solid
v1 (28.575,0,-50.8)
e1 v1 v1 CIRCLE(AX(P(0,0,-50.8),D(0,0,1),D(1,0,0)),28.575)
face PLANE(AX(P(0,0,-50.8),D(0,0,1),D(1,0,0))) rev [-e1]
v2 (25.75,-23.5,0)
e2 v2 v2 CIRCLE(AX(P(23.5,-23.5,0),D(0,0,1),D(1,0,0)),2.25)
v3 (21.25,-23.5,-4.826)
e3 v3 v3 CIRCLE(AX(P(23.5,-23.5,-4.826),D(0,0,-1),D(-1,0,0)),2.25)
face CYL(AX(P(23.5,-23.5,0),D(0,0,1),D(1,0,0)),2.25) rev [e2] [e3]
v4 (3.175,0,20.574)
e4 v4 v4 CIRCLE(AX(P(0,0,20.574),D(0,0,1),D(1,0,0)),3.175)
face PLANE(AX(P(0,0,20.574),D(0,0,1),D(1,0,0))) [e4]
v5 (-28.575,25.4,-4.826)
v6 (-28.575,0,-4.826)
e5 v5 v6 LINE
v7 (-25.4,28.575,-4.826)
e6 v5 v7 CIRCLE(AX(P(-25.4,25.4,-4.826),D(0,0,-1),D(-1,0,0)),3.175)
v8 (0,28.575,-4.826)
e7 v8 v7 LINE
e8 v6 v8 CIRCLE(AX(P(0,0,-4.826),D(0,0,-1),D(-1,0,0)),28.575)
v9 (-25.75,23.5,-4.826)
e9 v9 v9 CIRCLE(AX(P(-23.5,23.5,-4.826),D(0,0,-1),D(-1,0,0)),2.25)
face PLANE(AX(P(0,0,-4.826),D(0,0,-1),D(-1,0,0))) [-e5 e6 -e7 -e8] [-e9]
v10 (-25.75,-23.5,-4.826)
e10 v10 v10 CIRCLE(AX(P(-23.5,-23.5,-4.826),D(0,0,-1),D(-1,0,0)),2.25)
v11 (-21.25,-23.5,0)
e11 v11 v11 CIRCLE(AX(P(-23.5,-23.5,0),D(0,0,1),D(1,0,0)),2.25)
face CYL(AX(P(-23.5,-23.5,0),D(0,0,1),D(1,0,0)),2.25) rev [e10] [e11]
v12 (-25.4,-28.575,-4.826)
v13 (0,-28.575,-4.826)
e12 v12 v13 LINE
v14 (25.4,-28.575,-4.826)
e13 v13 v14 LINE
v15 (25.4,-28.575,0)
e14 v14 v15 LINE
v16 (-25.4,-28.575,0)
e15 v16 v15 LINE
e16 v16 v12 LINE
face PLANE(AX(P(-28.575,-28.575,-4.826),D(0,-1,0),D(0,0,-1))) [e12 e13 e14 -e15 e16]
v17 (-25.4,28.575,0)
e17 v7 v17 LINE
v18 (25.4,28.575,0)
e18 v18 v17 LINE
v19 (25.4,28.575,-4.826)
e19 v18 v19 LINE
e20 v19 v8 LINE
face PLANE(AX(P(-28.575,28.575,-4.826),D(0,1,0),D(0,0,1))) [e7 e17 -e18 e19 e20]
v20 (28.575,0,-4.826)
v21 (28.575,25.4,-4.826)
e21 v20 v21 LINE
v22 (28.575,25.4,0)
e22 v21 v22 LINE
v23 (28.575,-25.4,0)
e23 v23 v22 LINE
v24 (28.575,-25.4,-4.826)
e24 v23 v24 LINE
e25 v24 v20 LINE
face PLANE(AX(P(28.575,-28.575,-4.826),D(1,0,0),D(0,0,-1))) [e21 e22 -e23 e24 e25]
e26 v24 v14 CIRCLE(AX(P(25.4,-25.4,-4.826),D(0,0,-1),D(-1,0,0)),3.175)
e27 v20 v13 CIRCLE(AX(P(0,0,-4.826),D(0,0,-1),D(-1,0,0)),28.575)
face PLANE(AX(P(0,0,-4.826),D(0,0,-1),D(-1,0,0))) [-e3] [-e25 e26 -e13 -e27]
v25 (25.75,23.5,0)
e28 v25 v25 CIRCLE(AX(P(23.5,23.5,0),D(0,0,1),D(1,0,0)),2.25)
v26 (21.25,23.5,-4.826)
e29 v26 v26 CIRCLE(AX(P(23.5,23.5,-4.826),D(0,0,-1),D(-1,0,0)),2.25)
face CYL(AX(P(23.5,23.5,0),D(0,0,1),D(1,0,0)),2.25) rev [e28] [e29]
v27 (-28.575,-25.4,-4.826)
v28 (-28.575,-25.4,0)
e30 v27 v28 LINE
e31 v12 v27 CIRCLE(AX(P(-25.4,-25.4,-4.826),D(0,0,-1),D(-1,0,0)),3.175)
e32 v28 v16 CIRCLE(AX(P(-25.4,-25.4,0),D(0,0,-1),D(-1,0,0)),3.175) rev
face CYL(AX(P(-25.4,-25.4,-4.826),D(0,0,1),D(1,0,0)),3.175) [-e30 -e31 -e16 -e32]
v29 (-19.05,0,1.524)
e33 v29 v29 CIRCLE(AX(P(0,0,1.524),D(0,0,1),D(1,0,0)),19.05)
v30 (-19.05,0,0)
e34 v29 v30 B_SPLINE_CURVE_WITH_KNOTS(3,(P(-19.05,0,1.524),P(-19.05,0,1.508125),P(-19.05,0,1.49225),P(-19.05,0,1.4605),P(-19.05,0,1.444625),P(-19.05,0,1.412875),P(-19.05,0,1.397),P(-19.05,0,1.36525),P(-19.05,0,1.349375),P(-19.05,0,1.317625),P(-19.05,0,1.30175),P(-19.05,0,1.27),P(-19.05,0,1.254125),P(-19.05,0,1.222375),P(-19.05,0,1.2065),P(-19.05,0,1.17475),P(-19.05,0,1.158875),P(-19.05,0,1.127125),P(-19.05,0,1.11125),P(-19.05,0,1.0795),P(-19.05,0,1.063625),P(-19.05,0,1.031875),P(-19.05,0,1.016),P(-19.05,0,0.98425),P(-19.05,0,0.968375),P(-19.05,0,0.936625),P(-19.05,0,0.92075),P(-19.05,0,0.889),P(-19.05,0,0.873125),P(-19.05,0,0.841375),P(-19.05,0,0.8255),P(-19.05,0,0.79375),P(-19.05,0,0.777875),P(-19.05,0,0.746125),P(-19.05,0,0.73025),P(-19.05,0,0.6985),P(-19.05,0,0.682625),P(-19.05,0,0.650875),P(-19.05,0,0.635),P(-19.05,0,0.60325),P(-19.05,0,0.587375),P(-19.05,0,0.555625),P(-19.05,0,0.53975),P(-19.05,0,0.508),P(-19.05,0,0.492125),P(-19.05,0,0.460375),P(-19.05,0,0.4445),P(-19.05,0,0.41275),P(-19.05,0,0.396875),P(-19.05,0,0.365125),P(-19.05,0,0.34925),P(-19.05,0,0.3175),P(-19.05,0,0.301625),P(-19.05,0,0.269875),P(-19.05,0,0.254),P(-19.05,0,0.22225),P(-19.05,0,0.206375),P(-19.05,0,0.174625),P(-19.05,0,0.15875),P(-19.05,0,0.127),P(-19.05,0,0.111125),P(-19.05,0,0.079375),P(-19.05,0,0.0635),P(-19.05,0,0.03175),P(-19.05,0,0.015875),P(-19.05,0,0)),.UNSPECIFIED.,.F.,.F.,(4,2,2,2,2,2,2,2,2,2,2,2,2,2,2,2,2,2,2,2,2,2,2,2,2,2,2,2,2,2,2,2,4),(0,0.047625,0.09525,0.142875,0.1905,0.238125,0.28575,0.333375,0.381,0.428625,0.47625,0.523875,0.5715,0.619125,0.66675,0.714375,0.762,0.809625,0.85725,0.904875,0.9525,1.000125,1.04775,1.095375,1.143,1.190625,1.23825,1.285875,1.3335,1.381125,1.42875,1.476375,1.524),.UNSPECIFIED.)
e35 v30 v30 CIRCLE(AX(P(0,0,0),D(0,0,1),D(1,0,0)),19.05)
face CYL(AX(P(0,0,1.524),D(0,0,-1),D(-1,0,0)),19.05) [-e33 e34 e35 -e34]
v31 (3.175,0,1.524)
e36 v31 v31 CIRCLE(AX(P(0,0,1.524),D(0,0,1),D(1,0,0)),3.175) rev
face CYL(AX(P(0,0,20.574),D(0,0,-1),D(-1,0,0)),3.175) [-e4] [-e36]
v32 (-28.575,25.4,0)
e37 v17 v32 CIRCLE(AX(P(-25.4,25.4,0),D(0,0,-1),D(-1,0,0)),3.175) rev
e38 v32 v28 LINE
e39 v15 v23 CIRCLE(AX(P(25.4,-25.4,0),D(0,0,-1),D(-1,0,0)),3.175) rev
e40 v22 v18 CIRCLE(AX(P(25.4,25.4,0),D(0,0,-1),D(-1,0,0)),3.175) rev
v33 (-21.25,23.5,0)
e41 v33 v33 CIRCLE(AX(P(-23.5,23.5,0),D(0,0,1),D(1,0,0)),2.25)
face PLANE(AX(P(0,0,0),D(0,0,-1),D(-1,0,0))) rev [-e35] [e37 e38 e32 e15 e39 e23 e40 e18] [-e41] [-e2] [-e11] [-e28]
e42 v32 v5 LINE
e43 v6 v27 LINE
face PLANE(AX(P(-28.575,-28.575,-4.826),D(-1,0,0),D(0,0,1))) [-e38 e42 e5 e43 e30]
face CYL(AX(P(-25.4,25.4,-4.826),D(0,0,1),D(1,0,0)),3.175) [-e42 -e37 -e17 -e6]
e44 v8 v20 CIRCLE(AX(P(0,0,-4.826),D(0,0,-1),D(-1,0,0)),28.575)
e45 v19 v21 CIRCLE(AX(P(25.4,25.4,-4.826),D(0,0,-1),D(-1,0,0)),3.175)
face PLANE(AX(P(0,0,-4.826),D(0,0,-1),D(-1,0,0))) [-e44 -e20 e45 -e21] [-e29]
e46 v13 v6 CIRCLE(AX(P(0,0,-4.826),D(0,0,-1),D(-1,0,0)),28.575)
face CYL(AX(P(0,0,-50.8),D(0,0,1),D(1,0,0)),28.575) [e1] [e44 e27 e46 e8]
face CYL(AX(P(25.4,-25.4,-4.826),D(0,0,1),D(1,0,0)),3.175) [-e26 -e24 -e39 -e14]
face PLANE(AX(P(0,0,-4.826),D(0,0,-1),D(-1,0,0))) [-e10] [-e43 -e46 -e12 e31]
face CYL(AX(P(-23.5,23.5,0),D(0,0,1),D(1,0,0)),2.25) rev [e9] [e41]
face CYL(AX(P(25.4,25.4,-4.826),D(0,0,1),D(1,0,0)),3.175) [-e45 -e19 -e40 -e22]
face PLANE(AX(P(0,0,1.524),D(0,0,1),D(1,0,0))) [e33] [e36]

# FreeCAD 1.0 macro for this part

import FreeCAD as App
import Part
import Sketcher
Q = App.Units.Quantity


def edges_at(feature, points):
    """Names of the edges that pass closest to the given points."""
    edges = feature.Shape.Edges
    near = lambda p: min(range(len(edges)), key=lambda i: edges[i].distToShape(Part.Vertex(*p))[0])
    return sorted({f"Edge{near(p) + 1}" for p in points})

doc = App.newDocument("Part")
body = doc.addObject("PartDesign::Body", "Body")

# Sketch on XY plane
sketch1 = body.newObject("Sketcher::SketchObject", "Sketch")
sketch1.AttachmentSupport = (doc.getObject("XY_Plane"), [""])
sketch1.MapMode = "FlatFace"
sketch1.addGeometry(Part.LineSegment(App.Vector(-29, 29, 0), App.Vector(-29, -29, 0)), False)
sketch1.addGeometry(Part.LineSegment(App.Vector(-29, -29, 0), App.Vector(29, -29, 0)), False)
sketch1.addGeometry(Part.LineSegment(App.Vector(29, -29, 0), App.Vector(29, 29, 0)), False)
sketch1.addGeometry(Part.LineSegment(App.Vector(29, 29, 0), App.Vector(-29, 29, 0)), False)
sketch1.addConstraint(Sketcher.Constraint("Coincident", 0, 2, 1, 1))
sketch1.addConstraint(Sketcher.Constraint("Coincident", 1, 2, 2, 1))
sketch1.addConstraint(Sketcher.Constraint("Coincident", 2, 2, 3, 1))
sketch1.addConstraint(Sketcher.Constraint("Coincident", 3, 2, 0, 1))
sketch1.addConstraint(Sketcher.Constraint("Vertical", 0))
sketch1.addConstraint(Sketcher.Constraint("Horizontal", 1))
sketch1.addConstraint(Sketcher.Constraint("Vertical", 2))
sketch1.addConstraint(Sketcher.Constraint("Horizontal", 3))
sketch1.addConstraint(Sketcher.Constraint("Symmetric", 0, 2, 2, 2, -1, 1))
sketch1.addConstraint(Sketcher.Constraint("Equal", 3, 0))
sketch1.addConstraint(Sketcher.Constraint("DistanceX", 1, 1, 1, 2, Q("2.25 in")))
pad1 = body.newObject("PartDesign::Pad", "Pad")
pad1.Profile = sketch1
pad1.Length = Q("0.19 in")
pad1.Reversed = True

# Sketch on XY plane
sketch2 = body.newObject("Sketcher::SketchObject", "Sketch001")
sketch2.AttachmentSupport = (doc.getObject("XY_Plane"), [""])
sketch2.MapMode = "FlatFace"
sketch2.addGeometry(Part.Circle(App.Vector(0, 0, 0), App.Vector(0, 0, 1), 19), False)
sketch2.addConstraint(Sketcher.Constraint("Coincident", 0, 3, -1, 1))
sketch2.addConstraint(Sketcher.Constraint("Diameter", 0, Q("1.5 in")))
pad2 = body.newObject("PartDesign::Pad", "Pad001")
pad2.Profile = sketch2
pad2.Length = Q("0.06 in")

# Sketch on XY plane
sketch3 = body.newObject("Sketcher::SketchObject", "Sketch002")
sketch3.AttachmentSupport = (doc.getObject("XY_Plane"), [""])
sketch3.MapMode = "FlatFace"
sketch3.addGeometry(Part.Circle(App.Vector(0, 0, 0), App.Vector(0, 0, 1), 3.2), False)
sketch3.addConstraint(Sketcher.Constraint("Coincident", 0, 3, -1, 1))
sketch3.addConstraint(Sketcher.Constraint("Diameter", 0, Q("0.25 in")))
pad3 = body.newObject("PartDesign::Pad", "Pad002")
pad3.Profile = sketch3
pad3.Length = Q("0.81 in")

# Sketch on XY plane
sketch4 = body.newObject("Sketcher::SketchObject", "Sketch003")
sketch4.AttachmentSupport = (doc.getObject("XY_Plane"), [""])
sketch4.MapMode = "FlatFace"
sketch4.addGeometry(Part.Circle(App.Vector(0, 0, 0), App.Vector(0, 0, 1), 29), False)
sketch4.addConstraint(Sketcher.Constraint("Coincident", 0, 3, -1, 1))
sketch4.addConstraint(Sketcher.Constraint("Diameter", 0, Q("2.25 in")))
pad4 = body.newObject("PartDesign::Pad", "Pad003")
pad4.Profile = sketch4
pad4.Length = Q("2 in")
pad4.Reversed = True

# Sketch on XY plane
sketch5 = body.newObject("Sketcher::SketchObject", "Sketch004")
sketch5.AttachmentSupport = (doc.getObject("XY_Plane"), [""])
sketch5.MapMode = "FlatFace"
sketch5.addGeometry(Part.Circle(App.Vector(-23.5, 23.5, 0), App.Vector(0, 0, 1), 2.2), False)
sketch5.addGeometry(Part.Circle(App.Vector(23.5, 23.5, 0), App.Vector(0, 0, 1), 2.2), False)
sketch5.addGeometry(Part.Circle(App.Vector(23.5, -23.5, 0), App.Vector(0, 0, 1), 2.2), False)
sketch5.addGeometry(Part.Circle(App.Vector(-23.5, -23.5, 0), App.Vector(0, 0, 1), 2.2), False)
sketch5.addConstraint(Sketcher.Constraint("Equal", 0, 1))
sketch5.addConstraint(Sketcher.Constraint("Equal", 1, 2))
sketch5.addConstraint(Sketcher.Constraint("Equal", 2, 3))
sketch5.addConstraint(Sketcher.Constraint("Symmetric", 0, 3, 2, 3, -1, 1))
sketch5.addConstraint(Sketcher.Constraint("Symmetric", 1, 3, 3, 3, -1, 1))
sketch5.addConstraint(Sketcher.Constraint("Symmetric", 0, 3, 1, 3, -2))
sketch5.addConstraint(Sketcher.Constraint("Diameter", 0, Q("4.5 mm")))
sketch5.addConstraint(Sketcher.Constraint("DistanceX", 0, 3, -1, 1, Q("23.5 mm")))
sketch5.addConstraint(Sketcher.Constraint("DistanceY", -1, 1, 0, 3, Q("23.5 mm")))
doc.recompute()
hole = body.newObject("PartDesign::Hole", "Hole")
hole.Profile = sketch5
hole.ThreadType = "None"
hole.Diameter = 4.5
hole.DepthType = "ThroughAll"
doc.recompute()

fillet = body.newObject("PartDesign::Fillet", "Fillet")
fillet.Base = (hole, edges_at(hole, [
    (28.575, -28.575, -2.413),
    (-28.575, -28.575, -2.413),
    (-28.575, 28.575, -2.413),
    (28.575, 28.575, -2.413),
]))
fillet.Radius = Q("0.125 in")

doc.recompute()
